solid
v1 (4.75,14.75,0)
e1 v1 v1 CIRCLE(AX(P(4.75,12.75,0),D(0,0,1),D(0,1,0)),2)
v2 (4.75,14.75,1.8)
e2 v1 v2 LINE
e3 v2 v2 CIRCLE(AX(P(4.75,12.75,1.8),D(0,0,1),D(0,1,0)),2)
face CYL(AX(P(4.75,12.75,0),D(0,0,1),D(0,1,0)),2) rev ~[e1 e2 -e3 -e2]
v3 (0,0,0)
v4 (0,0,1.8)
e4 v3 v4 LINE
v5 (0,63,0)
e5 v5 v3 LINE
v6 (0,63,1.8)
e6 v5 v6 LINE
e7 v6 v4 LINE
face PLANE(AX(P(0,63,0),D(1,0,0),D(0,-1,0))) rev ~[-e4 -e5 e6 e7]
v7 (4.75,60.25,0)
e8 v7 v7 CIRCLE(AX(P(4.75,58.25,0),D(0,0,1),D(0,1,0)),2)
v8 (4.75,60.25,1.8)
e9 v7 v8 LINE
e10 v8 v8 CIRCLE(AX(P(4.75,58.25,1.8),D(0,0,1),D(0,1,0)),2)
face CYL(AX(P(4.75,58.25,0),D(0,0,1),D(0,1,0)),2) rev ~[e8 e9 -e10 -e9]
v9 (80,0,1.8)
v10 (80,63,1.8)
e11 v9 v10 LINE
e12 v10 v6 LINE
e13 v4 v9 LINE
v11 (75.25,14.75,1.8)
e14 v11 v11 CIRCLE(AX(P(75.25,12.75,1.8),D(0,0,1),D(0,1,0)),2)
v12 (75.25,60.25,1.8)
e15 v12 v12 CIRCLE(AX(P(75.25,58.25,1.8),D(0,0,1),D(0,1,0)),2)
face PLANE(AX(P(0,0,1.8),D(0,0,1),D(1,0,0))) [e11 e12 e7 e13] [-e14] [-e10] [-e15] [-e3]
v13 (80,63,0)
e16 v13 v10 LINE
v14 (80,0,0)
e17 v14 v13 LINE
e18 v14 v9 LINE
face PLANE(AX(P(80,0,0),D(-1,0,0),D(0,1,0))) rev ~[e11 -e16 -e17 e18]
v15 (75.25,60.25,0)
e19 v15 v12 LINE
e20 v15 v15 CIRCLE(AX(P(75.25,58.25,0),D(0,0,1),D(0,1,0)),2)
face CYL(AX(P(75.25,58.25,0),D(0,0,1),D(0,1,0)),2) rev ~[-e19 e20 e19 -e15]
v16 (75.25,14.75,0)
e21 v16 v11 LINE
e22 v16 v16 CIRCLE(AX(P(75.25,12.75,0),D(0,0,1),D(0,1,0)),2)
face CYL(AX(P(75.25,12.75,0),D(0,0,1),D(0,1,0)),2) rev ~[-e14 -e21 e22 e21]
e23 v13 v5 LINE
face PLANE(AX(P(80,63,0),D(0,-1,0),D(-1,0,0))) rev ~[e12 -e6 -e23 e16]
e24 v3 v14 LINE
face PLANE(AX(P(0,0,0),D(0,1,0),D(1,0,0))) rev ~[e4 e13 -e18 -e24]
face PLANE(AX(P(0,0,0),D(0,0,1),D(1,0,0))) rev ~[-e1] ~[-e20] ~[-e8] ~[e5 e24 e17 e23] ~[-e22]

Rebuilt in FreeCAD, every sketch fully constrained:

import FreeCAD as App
import Part
import Sketcher

V = App.Vector


def add_polygon(sketch, points):
    """Adds a closed chain of lines whose ends are joined by coincident constraints."""
    first, n = sketch.GeometryCount, len(points)
    for a, b in zip(points, points[1:] + points[:1]):
        sketch.addGeometry(Part.LineSegment(App.Vector(*a, 0), App.Vector(*b, 0)), False)
    for i in range(n):
        sketch.addConstraint(Sketcher.Constraint("Coincident", first + i, 2, first + (i + 1) % n, 1))

doc = App.newDocument("Part")
body = doc.addObject("PartDesign::Body", "Body")

# Sketch on XY plane
sketch1 = doc.addObject("Sketcher::SketchObject", "Sketch")
body.addObject(sketch1)
sketch1.AttachmentSupport = (doc.XY_Plane, [""])
sketch1.MapMode = "FlatFace"
add_polygon(sketch1, [(0, 63), (0, 0), (80, 0), (80, 63)])  # lines 0-3
sketch1.addConstraint([
    Sketcher.Constraint("Vertical", 0),
    Sketcher.Constraint("Horizontal", 1),
    Sketcher.Constraint("Vertical", 2),
    Sketcher.Constraint("Horizontal", 3),
    Sketcher.Constraint("Coincident", 0, 2, -1, 1),
    Sketcher.Constraint("DistanceX", 1, 1, 1, 2, 80.0),
    Sketcher.Constraint("DistanceY", 0, 2, 0, 1, 63.0),
])
pad1 = doc.addObject("PartDesign::Pad", "Pad")
body.addObject(pad1)
pad1.Profile = sketch1
pad1.Length = 1.8

# Sketch on XY plane
sketch2 = doc.addObject("Sketcher::SketchObject", "Sketch001")
body.addObject(sketch2)
sketch2.AttachmentSupport = (doc.XY_Plane, [""])
sketch2.MapMode = "FlatFace"
sketch2.addGeometry([
    Part.Circle(V(75.25, 58.25, 0), V(0, 0, 1), 2),
    Part.Circle(V(4.75, 58.25, 0), V(0, 0, 1), 2),
    Part.Circle(V(4.75, 12.75, 0), V(0, 0, 1), 2),
    Part.Circle(V(75.25, 12.75, 0), V(0, 0, 1), 2),
], False)
sketch2.addConstraint([
    Sketcher.Constraint("Equal", 0, 1),
    Sketcher.Constraint("Equal", 1, 2),
    Sketcher.Constraint("Equal", 2, 3),
    Sketcher.Constraint("Horizontal", 0, 3, 1, 3),
    Sketcher.Constraint("Horizontal", 2, 3, 3, 3),
    Sketcher.Constraint("Vertical", 1, 3, 2, 3),
    Sketcher.Constraint("Vertical", 0, 3, 3, 3),
    Sketcher.Constraint("Diameter", 0, 4.0),
    Sketcher.Constraint("DistanceX", 1, 3, 0, 3, 70.5),
    Sketcher.Constraint("DistanceY", 2, 3, 1, 3, 45.5),
    Sketcher.Constraint("DistanceX", -1, 1, 0, 3, 75.25),
    Sketcher.Constraint("DistanceY", -1, 1, 0, 3, 58.25),
])
doc.recompute()
hole = doc.addObject("PartDesign::Hole", "Hole")
body.addObject(hole)
hole.Profile = sketch2
hole.ThreadType = "None"
hole.Diameter = 4
hole.DepthType = "ThroughAll"
hole.Reversed = True

doc.recompute()
